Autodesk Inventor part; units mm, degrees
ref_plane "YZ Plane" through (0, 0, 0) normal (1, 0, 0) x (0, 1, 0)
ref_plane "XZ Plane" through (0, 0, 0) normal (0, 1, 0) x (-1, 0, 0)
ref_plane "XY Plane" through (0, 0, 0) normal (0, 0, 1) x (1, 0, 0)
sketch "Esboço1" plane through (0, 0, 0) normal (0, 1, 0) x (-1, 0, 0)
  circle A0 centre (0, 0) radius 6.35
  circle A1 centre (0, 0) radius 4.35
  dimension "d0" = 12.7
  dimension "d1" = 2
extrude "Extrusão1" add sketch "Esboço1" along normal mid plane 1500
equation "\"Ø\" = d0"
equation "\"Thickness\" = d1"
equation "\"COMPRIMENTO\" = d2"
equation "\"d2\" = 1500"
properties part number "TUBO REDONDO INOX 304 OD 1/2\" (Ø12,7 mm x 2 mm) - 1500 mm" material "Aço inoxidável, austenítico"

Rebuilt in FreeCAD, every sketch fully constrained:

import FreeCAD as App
import Part
import Sketcher
from FreeCAD import Vector

doc = App.newDocument("Part")
body = doc.addObject("PartDesign::Body", "Body")

sketch1 = body.newObject("Sketcher::SketchObject", "Sketch")
sketch1.AttachmentSupport = (doc.getObject("XZ_Plane"), [""])
sketch1.MapMode = "FlatFace"
sketch1.addGeometry(Part.Circle(Vector(0, 0, 0), Vector(0, 0, 1), 6.3), False)
sketch1.addGeometry(Part.Circle(Vector(0, 0, 0), Vector(0, 0, 1), 4.3), False)
sketch1.addConstraint(Sketcher.Constraint("Coincident", 0, 3, -1, 1))
sketch1.addConstraint(Sketcher.Constraint("Coincident", 1, 3, -1, 1))
sketch1.addConstraint(Sketcher.Constraint("Diameter", 0, 12.7))
sketch1.addConstraint(Sketcher.Constraint("Diameter", 1, 8.7))
pad1 = body.newObject("PartDesign::Pad", "Pad")
pad1.Profile = sketch1
pad1.Length = 1500
pad1.Midplane = True

doc.recompute()
